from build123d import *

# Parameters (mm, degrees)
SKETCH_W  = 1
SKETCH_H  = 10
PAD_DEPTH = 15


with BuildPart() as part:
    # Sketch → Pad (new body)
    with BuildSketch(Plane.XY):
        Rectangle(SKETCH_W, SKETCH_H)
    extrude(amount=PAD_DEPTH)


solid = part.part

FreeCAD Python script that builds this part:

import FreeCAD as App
import Part
import Sketcher

V = App.Vector
Q = App.Units.Quantity

doc = App.newDocument("Part")
params = doc.addObject("Spreadsheet::Sheet", "Params")
for row, (alias, value) in enumerate([
    ("sketch1_width", "1 mm"),
    ("sketch1_height", "10 mm"),
    ("pad1_length", "15 mm"),
], start=1):
    params.set(f"A{row}", alias)
    params.set(f"B{row}", "=" + value)
    params.setAlias(f"B{row}", alias)

body = doc.addObject("PartDesign::Body", "Body")

# Sketch on XY plane
sketch1 = body.newObject("Sketcher::SketchObject", "Sketch")
sketch1.AttachmentSupport = (doc.getObject("XY_Plane"), [""])
sketch1.MapMode = "FlatFace"
sketch1.addGeometry(Part.LineSegment(V(-0.5, 5, 0), V(-0.5, -5, 0)), False)
sketch1.addGeometry(Part.LineSegment(V(-0.5, -5, 0), V(0.5, -5, 0)), False)
sketch1.addGeometry(Part.LineSegment(V(0.5, -5, 0), V(0.5, 5, 0)), False)
sketch1.addGeometry(Part.LineSegment(V(0.5, 5, 0), V(-0.5, 5, 0)), False)
sketch1.addConstraint(Sketcher.Constraint("Coincident", 0, 2, 1, 1))
sketch1.addConstraint(Sketcher.Constraint("Coincident", 1, 2, 2, 1))
sketch1.addConstraint(Sketcher.Constraint("Coincident", 2, 2, 3, 1))
sketch1.addConstraint(Sketcher.Constraint("Coincident", 3, 2, 0, 1))
sketch1.addConstraint(Sketcher.Constraint("Vertical", 0))
sketch1.addConstraint(Sketcher.Constraint("Horizontal", 1))
sketch1.addConstraint(Sketcher.Constraint("Vertical", 2))
sketch1.addConstraint(Sketcher.Constraint("Horizontal", 3))
sketch1.addConstraint(Sketcher.Constraint("Symmetric", 0, 2, 2, 2, -1, 1))
sketch1.addConstraint(Sketcher.Constraint("DistanceX", 1, 1, 1, 2, Q("1 mm")))
sketch1.addConstraint(Sketcher.Constraint("DistanceY", 0, 2, 0, 1, Q("10 mm")))
sketch1.setExpression("Constraints[9]", "Params.sketch1_width")
sketch1.setExpression("Constraints[10]", "Params.sketch1_height")
pad1 = body.newObject("PartDesign::Pad", "Pad")
pad1.Profile = sketch1
pad1.setExpression("Length", "Params.pad1_length")

doc.recompute()
